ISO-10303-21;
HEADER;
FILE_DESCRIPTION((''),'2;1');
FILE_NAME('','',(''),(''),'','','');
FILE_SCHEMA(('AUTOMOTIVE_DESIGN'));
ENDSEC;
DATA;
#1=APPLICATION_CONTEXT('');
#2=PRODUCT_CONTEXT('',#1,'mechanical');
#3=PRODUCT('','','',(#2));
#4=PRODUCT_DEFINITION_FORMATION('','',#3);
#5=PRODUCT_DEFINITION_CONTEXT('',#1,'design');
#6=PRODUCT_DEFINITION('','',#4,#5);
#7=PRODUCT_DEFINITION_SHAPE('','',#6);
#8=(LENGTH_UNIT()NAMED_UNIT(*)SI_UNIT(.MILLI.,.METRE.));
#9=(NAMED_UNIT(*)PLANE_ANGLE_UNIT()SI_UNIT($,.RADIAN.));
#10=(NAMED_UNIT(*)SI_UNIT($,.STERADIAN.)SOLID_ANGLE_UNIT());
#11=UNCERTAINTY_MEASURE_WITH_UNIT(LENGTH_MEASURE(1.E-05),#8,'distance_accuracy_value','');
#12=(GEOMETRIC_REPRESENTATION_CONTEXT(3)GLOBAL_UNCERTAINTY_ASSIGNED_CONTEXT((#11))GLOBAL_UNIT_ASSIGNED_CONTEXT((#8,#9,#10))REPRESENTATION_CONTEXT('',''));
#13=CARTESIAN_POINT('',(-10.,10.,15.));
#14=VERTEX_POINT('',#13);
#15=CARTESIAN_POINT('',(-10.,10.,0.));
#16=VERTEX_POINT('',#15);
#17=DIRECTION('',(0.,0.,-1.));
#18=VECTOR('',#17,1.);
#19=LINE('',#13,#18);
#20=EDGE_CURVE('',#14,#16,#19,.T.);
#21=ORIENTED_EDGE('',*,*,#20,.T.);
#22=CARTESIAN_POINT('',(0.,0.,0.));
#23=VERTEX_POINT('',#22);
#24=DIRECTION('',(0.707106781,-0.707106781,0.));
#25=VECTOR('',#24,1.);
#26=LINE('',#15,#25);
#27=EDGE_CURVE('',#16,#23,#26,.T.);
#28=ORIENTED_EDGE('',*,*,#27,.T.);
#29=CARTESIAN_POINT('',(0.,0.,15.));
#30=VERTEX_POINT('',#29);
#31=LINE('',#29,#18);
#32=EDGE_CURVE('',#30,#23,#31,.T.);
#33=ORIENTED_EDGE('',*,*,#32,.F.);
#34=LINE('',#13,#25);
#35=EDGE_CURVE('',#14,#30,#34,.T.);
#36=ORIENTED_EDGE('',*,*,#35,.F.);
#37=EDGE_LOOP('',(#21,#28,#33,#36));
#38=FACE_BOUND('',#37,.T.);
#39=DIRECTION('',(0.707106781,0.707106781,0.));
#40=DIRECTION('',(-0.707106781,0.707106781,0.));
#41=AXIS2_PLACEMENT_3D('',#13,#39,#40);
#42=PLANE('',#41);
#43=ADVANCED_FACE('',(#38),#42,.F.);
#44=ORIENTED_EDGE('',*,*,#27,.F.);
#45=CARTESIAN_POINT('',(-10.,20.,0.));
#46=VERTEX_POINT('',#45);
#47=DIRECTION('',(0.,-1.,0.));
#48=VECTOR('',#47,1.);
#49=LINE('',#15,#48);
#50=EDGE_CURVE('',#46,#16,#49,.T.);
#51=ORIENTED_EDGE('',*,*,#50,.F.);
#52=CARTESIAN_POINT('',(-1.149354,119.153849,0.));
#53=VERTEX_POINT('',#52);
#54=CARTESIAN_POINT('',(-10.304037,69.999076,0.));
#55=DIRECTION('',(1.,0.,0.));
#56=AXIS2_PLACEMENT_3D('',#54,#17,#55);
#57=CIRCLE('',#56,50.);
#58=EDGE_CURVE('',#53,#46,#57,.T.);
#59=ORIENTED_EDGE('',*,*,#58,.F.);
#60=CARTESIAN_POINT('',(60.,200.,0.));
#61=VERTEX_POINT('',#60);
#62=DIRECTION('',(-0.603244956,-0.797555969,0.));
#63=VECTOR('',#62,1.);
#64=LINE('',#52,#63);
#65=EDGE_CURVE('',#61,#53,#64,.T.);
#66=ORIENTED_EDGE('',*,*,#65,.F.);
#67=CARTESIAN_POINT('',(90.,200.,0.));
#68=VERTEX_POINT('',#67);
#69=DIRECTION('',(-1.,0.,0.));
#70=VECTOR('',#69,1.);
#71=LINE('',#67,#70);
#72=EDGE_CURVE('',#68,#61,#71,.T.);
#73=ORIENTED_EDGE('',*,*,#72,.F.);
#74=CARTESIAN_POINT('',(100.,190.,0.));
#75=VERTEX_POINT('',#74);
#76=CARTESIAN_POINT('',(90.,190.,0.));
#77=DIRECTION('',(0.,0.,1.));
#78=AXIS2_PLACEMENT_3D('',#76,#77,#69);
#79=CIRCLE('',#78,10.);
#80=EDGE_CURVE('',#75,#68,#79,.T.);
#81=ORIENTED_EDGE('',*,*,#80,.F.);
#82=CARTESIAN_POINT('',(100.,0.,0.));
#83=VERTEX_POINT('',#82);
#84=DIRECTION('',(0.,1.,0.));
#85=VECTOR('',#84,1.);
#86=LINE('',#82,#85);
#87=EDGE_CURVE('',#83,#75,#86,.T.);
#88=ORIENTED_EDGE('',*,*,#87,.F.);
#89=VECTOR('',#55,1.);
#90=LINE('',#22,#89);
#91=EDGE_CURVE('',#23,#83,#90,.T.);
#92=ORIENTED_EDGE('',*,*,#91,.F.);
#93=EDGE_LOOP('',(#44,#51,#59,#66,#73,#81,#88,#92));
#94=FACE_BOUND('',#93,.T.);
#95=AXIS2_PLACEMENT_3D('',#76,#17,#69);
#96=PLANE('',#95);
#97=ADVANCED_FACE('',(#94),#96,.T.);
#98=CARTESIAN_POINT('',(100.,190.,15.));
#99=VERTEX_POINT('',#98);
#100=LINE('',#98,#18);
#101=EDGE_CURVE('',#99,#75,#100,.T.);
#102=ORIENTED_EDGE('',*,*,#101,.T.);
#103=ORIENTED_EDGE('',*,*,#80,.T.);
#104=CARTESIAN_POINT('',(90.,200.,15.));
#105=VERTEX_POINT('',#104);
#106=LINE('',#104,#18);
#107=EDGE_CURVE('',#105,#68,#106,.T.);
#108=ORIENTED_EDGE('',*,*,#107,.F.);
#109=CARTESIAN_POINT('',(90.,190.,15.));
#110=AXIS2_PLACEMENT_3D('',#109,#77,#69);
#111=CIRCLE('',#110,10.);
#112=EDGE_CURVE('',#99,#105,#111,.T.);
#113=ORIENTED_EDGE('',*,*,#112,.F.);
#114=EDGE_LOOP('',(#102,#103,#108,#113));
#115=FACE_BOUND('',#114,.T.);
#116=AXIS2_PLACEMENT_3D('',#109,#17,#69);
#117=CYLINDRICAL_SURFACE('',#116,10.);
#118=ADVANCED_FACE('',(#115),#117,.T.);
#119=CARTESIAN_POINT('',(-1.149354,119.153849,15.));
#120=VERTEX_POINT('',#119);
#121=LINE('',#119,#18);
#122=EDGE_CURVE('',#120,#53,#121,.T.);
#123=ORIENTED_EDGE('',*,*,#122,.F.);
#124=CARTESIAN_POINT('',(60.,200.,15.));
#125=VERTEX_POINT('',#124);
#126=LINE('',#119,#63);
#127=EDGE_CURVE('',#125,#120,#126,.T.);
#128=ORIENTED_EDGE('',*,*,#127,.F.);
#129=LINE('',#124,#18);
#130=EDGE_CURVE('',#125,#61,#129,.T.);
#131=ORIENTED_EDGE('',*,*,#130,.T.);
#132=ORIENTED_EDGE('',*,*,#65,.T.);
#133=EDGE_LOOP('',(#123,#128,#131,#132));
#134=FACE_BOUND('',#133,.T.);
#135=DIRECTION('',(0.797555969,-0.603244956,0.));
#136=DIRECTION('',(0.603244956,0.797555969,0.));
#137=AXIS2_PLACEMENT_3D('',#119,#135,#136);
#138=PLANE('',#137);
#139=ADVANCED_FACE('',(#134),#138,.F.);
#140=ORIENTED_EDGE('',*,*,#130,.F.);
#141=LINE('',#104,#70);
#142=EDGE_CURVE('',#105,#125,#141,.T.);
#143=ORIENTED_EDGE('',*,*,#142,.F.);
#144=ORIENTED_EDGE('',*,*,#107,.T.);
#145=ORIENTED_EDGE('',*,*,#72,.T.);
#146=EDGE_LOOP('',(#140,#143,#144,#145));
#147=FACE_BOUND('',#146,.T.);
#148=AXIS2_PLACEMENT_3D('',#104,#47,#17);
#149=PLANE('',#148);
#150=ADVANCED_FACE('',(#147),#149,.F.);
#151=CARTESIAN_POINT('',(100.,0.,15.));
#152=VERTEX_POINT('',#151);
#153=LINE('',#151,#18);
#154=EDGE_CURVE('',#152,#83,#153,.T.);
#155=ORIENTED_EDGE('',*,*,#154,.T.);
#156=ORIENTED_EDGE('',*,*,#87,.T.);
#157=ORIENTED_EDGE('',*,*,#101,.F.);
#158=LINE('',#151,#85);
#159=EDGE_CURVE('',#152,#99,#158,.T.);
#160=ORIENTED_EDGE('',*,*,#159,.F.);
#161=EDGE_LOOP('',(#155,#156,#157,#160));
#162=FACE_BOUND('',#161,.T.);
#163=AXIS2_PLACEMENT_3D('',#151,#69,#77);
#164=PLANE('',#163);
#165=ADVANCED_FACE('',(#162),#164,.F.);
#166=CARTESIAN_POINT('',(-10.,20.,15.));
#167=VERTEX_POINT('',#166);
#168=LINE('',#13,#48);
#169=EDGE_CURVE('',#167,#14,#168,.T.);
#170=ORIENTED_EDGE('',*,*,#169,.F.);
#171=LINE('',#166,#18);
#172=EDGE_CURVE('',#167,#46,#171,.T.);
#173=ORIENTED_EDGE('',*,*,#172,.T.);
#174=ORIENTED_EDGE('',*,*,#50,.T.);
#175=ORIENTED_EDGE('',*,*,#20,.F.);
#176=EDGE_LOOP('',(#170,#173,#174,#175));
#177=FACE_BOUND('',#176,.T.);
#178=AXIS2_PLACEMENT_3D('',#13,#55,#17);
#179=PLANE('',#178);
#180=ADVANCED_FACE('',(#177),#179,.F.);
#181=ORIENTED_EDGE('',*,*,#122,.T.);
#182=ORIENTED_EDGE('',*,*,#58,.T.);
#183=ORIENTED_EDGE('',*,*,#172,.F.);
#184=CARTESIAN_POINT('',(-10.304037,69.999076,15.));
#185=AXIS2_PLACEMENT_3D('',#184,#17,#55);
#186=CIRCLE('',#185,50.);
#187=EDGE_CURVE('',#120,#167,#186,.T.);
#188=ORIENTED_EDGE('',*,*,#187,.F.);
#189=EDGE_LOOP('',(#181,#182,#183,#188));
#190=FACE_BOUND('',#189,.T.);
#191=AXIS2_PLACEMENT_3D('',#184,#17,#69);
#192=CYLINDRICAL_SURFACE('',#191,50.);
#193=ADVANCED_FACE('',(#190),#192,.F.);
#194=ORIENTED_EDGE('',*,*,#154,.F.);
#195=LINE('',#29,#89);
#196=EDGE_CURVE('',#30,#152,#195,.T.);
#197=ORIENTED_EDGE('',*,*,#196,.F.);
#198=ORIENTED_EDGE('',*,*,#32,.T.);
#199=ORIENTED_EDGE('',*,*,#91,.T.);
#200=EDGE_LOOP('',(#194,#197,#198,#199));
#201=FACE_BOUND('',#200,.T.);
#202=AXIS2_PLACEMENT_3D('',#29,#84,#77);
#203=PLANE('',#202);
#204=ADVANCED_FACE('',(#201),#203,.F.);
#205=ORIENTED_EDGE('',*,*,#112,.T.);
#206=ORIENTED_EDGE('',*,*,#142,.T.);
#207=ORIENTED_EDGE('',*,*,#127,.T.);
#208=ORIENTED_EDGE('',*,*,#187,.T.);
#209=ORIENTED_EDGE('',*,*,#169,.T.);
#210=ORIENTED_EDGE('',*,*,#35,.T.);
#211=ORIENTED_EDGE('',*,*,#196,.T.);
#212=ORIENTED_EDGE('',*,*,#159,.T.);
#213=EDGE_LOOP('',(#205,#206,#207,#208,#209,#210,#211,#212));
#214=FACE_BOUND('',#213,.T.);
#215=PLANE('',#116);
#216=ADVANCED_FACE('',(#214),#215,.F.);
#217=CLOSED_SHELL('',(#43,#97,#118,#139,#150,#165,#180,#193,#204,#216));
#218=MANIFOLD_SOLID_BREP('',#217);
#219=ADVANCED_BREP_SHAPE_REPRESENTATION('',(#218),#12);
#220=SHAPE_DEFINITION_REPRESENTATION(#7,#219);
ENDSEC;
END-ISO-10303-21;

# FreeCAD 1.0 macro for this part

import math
import FreeCAD as App
import Part
import Sketcher

V = App.Vector
Q = App.Units.Quantity

doc = App.newDocument("Part")
body = doc.addObject("PartDesign::Body", "Body")

# Sketch on XY plane
sketch1 = body.newObject("Sketcher::SketchObject", "Sketch")
sketch1.AttachmentSupport = (doc.getObject("XY_Plane"), [""])
sketch1.MapMode = "FlatFace"
sketch1.addGeometry([
    Part.LineSegment(V(0, 0, 0), V(100, 0, 0)),  # 0
    Part.LineSegment(V(100, 0, 0), V(100, 190, 0)),  # 1
    Part.ArcOfCircle(Part.Circle(V(90, 190, 0), V(0, 0, 1), 10), math.radians(0), math.radians(90)),  # 2
    Part.LineSegment(V(90, 200, 0), V(60, 200, 0)),  # 3
    Part.LineSegment(V(60, 200, 0), V(-1, 119, 0)),  # 4
    Part.ArcOfCircle(Part.Circle(V(-10, 70, 0), V(0, 0, 1), 50), math.radians(-90), math.radians(79)),  # 5
    Part.LineSegment(V(-10, 20, 0), V(-10, 10, 0)),  # 6
    Part.LineSegment(V(-10, 10, 0), V(0, 0, 0)),  # 7
], False)
sketch1.addConstraint([
    Sketcher.Constraint("Coincident", 0, 2, 1, 1),
    Sketcher.Constraint("Tangent", 1, 2, 2, 1),
    Sketcher.Constraint("Tangent", 2, 2, 3, 1),
    Sketcher.Constraint("Coincident", 3, 2, 4, 1),
    Sketcher.Constraint("Coincident", 4, 2, 5, 2),
    Sketcher.Constraint("Coincident", 5, 1, 6, 1),
    Sketcher.Constraint("Coincident", 6, 2, 7, 1),
    Sketcher.Constraint("Coincident", 7, 2, 0, 1),
    Sketcher.Constraint("Horizontal", 0),
    Sketcher.Constraint("Vertical", 1),
    Sketcher.Constraint("Horizontal", 3),
    Sketcher.Constraint("Vertical", 6),
    Sketcher.Constraint("Coincident", 7, 2, -1, 1),
    Sketcher.Constraint("Radius", 2, Q("10 mm")),
    Sketcher.Constraint("Radius", 5, Q("50 mm")),
    Sketcher.Constraint("DistanceX", 0, 1, 0, 2, Q("100 mm")),
    Sketcher.Constraint("DistanceX", 3, 2, 3, 1, Q("30 mm")),
    Sketcher.Constraint("DistanceY", 1, 1, 1, 2, Q("190 mm")),
    Sketcher.Constraint("DistanceY", 6, 2, 6, 1, Q("10 mm")),
    Sketcher.Constraint("Angle", 7, Q("-45 deg")),
    Sketcher.Constraint("DistanceX", 5, 1, -1, 1, Q("10 mm")),
    Sketcher.Constraint("Distance", 4, Q("101.36737 mm")),
    Sketcher.Constraint("DistanceY", -1, 1, 4, 2, Q("119.153849 mm")),
])
pad1 = body.newObject("PartDesign::Pad", "Pad")
pad1.Profile = sketch1
pad1.Length = 15

doc.recompute()
